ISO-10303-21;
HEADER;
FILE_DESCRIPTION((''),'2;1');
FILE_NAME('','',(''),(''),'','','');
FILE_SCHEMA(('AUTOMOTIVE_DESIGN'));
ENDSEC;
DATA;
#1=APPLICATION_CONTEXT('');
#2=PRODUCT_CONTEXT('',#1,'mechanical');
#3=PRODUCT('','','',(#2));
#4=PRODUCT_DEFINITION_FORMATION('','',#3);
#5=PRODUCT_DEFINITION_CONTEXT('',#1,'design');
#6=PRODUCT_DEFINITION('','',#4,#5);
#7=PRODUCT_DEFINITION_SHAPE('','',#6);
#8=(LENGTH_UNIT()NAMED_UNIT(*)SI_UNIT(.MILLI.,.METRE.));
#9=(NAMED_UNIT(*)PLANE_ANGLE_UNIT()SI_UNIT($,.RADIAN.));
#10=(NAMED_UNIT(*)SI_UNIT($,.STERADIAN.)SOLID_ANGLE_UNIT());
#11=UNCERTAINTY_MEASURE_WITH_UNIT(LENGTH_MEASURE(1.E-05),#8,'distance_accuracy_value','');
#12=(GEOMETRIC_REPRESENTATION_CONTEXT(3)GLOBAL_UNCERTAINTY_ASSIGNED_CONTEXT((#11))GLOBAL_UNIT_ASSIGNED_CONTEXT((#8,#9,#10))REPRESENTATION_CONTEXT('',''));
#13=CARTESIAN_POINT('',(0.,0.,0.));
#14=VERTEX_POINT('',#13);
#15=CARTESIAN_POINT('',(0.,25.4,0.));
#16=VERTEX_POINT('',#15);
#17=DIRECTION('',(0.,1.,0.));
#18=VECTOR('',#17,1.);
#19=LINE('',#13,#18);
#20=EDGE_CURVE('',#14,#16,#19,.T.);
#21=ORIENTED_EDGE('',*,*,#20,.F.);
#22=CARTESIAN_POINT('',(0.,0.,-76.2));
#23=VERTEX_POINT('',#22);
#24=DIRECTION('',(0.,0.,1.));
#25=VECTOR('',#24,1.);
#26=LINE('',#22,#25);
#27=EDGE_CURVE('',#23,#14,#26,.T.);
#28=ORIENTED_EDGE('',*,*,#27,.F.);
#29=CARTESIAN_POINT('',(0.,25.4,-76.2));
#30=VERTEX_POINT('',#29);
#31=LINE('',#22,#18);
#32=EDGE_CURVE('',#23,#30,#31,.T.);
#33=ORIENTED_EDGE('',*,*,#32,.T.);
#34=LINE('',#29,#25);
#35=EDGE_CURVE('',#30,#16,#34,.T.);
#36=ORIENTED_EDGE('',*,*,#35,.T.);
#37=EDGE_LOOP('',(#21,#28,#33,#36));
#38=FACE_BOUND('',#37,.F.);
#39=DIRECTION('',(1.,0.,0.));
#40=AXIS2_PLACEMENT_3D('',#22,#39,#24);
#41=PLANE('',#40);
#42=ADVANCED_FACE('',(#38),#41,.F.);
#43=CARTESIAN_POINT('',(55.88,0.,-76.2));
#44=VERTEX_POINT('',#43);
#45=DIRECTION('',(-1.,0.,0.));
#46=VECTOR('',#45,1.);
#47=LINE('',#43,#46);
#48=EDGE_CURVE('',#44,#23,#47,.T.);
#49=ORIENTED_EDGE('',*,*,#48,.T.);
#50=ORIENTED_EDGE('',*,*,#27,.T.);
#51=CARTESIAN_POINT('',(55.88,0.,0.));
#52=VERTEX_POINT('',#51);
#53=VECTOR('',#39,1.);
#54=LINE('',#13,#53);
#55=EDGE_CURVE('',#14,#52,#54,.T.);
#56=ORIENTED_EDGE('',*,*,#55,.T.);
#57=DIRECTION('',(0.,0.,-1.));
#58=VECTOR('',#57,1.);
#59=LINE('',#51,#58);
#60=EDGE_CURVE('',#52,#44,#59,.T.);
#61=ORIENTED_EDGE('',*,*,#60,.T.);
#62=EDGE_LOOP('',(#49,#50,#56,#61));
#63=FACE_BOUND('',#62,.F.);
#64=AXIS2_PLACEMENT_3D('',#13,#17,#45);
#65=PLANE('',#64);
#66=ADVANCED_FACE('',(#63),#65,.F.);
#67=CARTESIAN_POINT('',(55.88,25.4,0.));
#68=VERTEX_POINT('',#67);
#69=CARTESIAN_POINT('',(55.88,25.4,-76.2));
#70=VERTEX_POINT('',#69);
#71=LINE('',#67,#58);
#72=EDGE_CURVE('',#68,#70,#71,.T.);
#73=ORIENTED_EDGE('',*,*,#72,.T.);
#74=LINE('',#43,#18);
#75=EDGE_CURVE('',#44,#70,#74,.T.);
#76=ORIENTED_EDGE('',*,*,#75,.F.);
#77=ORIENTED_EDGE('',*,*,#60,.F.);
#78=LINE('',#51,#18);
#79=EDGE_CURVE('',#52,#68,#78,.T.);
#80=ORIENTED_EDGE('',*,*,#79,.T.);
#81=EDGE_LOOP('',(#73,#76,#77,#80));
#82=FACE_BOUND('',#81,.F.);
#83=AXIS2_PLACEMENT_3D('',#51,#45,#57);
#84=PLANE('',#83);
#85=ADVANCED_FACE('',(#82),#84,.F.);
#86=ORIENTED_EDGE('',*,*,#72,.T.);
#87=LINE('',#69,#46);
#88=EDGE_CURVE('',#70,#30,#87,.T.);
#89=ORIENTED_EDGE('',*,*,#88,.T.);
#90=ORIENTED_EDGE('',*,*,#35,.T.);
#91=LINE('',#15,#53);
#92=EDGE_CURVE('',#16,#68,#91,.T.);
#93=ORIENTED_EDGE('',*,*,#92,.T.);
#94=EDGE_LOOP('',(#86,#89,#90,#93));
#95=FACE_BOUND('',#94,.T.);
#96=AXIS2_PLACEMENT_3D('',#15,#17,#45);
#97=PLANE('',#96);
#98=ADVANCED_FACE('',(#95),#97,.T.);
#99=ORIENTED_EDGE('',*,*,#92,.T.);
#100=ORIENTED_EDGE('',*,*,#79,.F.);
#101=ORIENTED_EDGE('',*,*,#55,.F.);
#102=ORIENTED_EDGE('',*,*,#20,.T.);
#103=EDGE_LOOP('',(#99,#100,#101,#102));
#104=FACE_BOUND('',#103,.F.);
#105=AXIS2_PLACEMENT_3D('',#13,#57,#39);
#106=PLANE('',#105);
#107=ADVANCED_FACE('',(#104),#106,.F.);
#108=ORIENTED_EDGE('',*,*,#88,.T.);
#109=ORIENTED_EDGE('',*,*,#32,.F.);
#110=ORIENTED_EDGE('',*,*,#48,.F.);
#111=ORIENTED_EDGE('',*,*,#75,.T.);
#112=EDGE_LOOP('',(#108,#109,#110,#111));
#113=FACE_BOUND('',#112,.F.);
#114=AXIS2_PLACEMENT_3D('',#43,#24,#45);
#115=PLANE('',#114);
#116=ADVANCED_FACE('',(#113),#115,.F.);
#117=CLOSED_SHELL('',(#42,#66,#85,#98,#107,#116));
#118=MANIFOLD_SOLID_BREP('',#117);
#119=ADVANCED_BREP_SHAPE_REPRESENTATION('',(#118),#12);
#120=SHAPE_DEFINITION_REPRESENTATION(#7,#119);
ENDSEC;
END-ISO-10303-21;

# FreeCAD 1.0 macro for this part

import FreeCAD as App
import Part
import Sketcher

V = App.Vector
Q = App.Units.Quantity


def add_polygon(sketch, points):
    """Adds a closed chain of lines whose ends are joined by coincident constraints."""
    first, n = sketch.GeometryCount, len(points)
    for a, b in zip(points, points[1:] + points[:1]):
        sketch.addGeometry(Part.LineSegment(App.Vector(*a, 0), App.Vector(*b, 0)), False)
    for i in range(n):
        sketch.addConstraint(Sketcher.Constraint("Coincident", first + i, 2, first + (i + 1) % n, 1))

doc = App.newDocument("Part")
body = doc.addObject("PartDesign::Body", "Body")

# Sketch on XZ plane
sketch1 = body.newObject("Sketcher::SketchObject", "Sketch")
sketch1.AttachmentSupport = (doc.getObject("XZ_Plane"), [""])
sketch1.MapMode = "FlatFace"
add_polygon(sketch1, [(0, -76), (0, 0), (56, 0), (56, -76)])  # lines 0-3
sketch1.addConstraint(Sketcher.Constraint("Vertical", 0))
sketch1.addConstraint(Sketcher.Constraint("Horizontal", 1))
sketch1.addConstraint(Sketcher.Constraint("Vertical", 2))
sketch1.addConstraint(Sketcher.Constraint("Horizontal", 3))
sketch1.addConstraint(Sketcher.Constraint("Coincident", 0, 2, -1, 1))
sketch1.addConstraint(Sketcher.Constraint("DistanceY", 0, 1, 0, 2, Q("3 in")))
sketch1.addConstraint(Sketcher.Constraint("DistanceX", 1, 1, 1, 2, Q("2.2 in")))
pad1 = body.newObject("PartDesign::Pad", "Pad")
pad1.Profile = sketch1
pad1.Length = Q("1 in")
pad1.Reversed = True

doc.recompute()
